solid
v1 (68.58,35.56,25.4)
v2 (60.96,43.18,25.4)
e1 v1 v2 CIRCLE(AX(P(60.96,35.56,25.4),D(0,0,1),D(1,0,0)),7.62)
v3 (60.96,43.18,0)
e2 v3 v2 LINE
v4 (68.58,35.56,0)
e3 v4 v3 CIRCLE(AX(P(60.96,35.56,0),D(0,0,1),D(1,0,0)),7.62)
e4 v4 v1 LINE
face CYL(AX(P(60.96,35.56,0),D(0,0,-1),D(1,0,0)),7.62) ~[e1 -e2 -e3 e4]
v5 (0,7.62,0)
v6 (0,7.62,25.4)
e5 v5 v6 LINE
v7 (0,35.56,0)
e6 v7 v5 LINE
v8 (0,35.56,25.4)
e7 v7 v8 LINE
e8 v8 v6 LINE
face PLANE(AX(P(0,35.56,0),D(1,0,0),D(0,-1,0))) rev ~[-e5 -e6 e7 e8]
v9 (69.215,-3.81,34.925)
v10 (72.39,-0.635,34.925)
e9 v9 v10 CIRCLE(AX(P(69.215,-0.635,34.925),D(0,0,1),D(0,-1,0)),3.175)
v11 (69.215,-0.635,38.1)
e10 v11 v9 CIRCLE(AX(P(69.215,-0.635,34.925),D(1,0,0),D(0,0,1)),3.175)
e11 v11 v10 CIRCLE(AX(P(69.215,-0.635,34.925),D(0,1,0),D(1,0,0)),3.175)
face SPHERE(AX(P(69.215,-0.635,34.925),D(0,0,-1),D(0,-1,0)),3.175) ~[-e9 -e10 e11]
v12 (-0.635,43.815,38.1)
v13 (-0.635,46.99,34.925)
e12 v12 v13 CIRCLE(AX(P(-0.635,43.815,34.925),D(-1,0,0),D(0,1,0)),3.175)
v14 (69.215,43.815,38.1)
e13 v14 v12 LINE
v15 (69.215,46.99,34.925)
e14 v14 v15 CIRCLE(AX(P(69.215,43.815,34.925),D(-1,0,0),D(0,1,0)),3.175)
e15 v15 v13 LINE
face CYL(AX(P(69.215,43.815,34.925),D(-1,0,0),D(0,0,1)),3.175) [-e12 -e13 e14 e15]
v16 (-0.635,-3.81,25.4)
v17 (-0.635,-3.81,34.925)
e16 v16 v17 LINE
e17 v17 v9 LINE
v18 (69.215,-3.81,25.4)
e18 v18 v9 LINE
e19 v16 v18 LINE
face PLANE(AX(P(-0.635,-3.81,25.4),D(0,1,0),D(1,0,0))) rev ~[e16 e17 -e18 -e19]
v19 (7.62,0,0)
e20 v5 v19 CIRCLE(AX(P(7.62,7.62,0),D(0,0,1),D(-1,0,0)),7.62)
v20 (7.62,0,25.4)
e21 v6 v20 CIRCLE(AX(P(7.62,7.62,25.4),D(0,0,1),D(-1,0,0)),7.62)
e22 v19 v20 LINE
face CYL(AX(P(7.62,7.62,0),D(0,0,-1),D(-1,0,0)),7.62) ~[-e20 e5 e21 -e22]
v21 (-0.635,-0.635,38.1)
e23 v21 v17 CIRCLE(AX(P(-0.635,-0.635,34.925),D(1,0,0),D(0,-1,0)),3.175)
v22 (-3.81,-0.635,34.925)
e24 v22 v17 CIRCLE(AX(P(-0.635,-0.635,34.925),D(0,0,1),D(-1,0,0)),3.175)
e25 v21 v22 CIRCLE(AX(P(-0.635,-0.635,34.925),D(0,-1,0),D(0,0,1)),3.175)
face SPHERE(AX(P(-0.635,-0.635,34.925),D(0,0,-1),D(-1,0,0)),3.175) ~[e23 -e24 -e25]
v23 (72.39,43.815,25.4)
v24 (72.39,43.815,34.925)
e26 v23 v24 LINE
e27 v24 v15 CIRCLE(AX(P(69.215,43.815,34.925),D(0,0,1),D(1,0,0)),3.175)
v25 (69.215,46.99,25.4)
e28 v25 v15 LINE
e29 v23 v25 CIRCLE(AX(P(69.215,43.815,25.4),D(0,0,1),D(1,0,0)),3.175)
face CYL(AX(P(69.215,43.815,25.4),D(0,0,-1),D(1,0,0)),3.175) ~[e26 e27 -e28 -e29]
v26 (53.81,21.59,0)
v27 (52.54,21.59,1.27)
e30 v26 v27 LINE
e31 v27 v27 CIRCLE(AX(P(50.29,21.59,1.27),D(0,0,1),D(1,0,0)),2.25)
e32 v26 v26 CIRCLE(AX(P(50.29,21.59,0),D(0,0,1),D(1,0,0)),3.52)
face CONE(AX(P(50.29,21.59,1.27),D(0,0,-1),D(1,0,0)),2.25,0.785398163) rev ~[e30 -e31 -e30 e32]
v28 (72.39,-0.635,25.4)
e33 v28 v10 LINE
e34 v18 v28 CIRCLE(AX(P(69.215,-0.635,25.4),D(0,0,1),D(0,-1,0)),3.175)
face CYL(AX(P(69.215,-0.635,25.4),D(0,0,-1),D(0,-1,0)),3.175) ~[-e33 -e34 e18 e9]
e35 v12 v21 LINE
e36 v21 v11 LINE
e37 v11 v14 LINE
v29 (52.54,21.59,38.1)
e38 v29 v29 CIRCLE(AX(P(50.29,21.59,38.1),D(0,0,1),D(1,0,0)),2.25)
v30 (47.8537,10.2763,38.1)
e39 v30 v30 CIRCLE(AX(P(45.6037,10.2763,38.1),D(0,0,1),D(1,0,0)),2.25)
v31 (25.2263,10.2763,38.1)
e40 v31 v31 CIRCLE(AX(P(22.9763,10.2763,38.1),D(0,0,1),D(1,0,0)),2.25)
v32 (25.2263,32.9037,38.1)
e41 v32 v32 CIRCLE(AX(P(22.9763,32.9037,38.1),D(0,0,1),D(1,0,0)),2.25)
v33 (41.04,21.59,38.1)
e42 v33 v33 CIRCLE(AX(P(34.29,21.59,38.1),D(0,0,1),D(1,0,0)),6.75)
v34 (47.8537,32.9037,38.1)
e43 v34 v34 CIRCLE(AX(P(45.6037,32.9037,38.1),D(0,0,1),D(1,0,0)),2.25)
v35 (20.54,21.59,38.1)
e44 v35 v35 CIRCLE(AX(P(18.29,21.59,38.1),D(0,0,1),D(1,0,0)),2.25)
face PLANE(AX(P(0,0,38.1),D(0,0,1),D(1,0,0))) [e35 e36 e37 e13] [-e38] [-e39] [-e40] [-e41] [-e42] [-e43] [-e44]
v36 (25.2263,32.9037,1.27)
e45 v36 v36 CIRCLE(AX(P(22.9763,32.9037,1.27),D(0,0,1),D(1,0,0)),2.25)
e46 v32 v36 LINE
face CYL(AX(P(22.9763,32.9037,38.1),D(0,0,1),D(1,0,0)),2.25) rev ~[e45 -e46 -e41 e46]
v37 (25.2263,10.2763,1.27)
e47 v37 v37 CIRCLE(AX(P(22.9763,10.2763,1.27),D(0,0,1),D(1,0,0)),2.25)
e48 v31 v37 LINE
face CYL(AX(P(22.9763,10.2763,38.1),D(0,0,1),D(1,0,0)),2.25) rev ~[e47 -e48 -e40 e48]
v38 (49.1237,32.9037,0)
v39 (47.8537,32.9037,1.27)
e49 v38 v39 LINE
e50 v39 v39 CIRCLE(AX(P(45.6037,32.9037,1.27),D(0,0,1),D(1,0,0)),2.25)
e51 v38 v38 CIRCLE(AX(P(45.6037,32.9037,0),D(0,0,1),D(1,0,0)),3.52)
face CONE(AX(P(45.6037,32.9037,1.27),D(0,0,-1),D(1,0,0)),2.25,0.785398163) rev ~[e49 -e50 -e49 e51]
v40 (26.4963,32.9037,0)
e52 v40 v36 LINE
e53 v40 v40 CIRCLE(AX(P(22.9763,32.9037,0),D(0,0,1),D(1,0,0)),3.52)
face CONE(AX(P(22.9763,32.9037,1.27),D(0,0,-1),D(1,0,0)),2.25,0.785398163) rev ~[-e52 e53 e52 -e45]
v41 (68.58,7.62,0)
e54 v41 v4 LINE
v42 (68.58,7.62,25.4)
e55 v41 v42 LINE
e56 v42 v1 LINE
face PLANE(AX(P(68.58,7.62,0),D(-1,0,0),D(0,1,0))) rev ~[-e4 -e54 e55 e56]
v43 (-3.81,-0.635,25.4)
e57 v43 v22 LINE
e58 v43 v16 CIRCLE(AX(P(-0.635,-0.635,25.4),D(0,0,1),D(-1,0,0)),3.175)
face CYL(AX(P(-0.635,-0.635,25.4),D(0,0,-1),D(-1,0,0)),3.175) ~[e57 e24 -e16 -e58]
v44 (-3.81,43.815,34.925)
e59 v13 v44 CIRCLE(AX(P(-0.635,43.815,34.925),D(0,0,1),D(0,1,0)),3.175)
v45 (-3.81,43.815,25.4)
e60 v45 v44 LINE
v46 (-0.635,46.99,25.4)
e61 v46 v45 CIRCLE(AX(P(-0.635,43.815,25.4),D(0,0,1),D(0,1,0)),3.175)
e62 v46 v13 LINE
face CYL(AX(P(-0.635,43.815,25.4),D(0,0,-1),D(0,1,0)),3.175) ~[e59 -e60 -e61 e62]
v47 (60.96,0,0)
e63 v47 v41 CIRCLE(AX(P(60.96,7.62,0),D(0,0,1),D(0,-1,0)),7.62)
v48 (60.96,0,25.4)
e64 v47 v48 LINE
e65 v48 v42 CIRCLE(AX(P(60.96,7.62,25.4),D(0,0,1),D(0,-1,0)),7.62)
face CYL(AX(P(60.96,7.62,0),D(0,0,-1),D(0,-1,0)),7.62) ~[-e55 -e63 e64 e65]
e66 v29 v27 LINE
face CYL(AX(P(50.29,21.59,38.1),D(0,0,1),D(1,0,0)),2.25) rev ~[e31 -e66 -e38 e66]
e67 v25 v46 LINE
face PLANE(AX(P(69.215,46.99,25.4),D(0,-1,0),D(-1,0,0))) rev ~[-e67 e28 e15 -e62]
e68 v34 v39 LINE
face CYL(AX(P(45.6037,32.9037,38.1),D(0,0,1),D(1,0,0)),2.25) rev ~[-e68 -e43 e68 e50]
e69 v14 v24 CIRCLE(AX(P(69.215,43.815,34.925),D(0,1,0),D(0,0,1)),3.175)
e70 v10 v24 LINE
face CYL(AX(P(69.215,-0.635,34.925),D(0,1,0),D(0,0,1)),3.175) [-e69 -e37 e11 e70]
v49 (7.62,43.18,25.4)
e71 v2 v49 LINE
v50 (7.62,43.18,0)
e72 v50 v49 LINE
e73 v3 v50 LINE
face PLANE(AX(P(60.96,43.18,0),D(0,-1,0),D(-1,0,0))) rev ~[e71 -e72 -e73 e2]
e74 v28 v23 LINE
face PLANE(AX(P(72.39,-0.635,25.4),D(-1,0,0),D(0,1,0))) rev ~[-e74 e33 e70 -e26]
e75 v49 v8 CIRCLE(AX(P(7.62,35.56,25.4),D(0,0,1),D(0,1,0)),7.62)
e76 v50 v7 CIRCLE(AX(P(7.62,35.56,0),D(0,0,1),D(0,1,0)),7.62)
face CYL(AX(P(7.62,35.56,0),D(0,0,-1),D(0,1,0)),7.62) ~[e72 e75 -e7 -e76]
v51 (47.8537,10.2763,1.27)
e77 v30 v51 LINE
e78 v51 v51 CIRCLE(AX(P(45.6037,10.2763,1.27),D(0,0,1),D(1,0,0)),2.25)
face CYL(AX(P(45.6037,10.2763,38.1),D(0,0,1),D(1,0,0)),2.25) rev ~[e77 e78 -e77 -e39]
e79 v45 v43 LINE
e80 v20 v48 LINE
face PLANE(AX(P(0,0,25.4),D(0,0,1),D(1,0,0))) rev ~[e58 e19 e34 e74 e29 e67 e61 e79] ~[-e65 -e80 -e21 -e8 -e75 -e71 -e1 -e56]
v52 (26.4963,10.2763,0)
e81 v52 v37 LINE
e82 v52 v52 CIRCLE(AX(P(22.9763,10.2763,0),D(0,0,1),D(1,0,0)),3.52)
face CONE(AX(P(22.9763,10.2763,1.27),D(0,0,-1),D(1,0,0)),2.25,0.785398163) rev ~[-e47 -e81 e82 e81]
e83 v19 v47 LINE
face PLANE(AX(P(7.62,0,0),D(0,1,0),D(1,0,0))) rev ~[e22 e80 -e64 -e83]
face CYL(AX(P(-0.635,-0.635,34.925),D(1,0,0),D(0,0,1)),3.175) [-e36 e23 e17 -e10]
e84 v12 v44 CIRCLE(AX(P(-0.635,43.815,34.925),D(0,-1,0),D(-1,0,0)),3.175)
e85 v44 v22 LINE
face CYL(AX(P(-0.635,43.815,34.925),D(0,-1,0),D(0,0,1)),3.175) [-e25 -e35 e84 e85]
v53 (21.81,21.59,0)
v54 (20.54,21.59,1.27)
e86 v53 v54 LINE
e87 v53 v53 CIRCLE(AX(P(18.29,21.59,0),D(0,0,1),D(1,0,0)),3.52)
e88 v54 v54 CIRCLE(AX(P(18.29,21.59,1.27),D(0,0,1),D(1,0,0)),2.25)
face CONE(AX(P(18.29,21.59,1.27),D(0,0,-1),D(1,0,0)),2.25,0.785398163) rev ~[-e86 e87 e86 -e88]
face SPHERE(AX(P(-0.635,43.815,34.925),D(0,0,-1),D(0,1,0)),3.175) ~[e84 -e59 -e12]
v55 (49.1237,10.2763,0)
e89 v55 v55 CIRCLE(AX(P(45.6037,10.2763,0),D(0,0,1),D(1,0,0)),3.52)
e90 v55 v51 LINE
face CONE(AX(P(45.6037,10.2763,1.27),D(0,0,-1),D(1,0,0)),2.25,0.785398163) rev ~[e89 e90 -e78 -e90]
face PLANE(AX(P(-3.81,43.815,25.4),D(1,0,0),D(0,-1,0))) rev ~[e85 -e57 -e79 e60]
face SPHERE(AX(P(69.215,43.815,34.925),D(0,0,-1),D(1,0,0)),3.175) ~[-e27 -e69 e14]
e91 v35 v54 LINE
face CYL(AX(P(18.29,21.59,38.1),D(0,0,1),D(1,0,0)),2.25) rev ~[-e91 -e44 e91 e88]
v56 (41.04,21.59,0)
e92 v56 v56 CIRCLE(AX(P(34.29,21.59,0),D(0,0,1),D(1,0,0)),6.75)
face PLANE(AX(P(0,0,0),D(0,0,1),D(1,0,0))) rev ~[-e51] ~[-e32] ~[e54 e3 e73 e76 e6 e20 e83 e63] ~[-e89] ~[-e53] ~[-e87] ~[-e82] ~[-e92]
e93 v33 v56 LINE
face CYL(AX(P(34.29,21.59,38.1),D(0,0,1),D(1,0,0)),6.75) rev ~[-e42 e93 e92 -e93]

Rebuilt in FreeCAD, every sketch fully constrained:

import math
import FreeCAD as App
import Part
import Sketcher

V = App.Vector
Q = App.Units.Quantity


def edges_at(feature, points):
    """Names of the edges that pass closest to the given points."""
    edges = feature.Shape.Edges
    near = lambda p: min(range(len(edges)), key=lambda i: edges[i].distToShape(Part.Vertex(*p))[0])
    return sorted({f"Edge{near(p) + 1}" for p in points})

doc = App.newDocument("Part")
body = doc.addObject("PartDesign::Body", "Body")

sketch1 = body.newObject("Sketcher::SketchObject", "Sketch")
sketch1.AttachmentSupport = (doc.getObject("XY_Plane"), [""])
sketch1.MapMode = "FlatFace"
sketch1.addGeometry([
    Part.ArcOfCircle(Part.Circle(V(8, 8, 0), V(0, 0, 1), 8), math.radians(180), math.radians(270)),
    Part.LineSegment(V(8, 0, 0), V(61, 0, 0)),
    Part.ArcOfCircle(Part.Circle(V(61, 8, 0), V(0, 0, 1), 8), math.radians(-90), math.radians(0)),
    Part.LineSegment(V(69, 8, 0), V(69, 36, 0)),
    Part.ArcOfCircle(Part.Circle(V(61, 36, 0), V(0, 0, 1), 8), math.radians(0), math.radians(90)),
    Part.LineSegment(V(61, 43, 0), V(8, 43, 0)),
    Part.ArcOfCircle(Part.Circle(V(8, 36, 0), V(0, 0, 1), 8), math.radians(90), math.radians(180)),
    Part.LineSegment(V(0, 36, 0), V(0, 8, 0)),
], False)
sketch1.addConstraint([
    Sketcher.Constraint("Tangent", 0, 2, 1, 1),
    Sketcher.Constraint("Tangent", 1, 2, 2, 1),
    Sketcher.Constraint("Tangent", 2, 2, 3, 1),
    Sketcher.Constraint("Tangent", 3, 2, 4, 1),
    Sketcher.Constraint("Tangent", 4, 2, 5, 1),
    Sketcher.Constraint("Tangent", 5, 2, 6, 1),
    Sketcher.Constraint("Tangent", 6, 2, 7, 1),
    Sketcher.Constraint("Tangent", 7, 2, 0, 1),
    Sketcher.Constraint("Horizontal", 1),
    Sketcher.Constraint("Vertical", 3),
    Sketcher.Constraint("Horizontal", 5),
    Sketcher.Constraint("Vertical", 7),
    Sketcher.Constraint("Equal", 0, 2),
    Sketcher.Constraint("Equal", 2, 4),
    Sketcher.Constraint("Equal", 4, 6),
    Sketcher.Constraint("PointOnObject", 0, 2, -1),
    Sketcher.Constraint("PointOnObject", 6, 2, -2),
    Sketcher.Constraint("Radius", 0, Q("0.3 in")),
    Sketcher.Constraint("DistanceX", -1, 1, 2, 2, Q("2.7 in")),
    Sketcher.Constraint("DistanceY", -1, 1, 4, 2, Q("1.7 in")),
])
pad1 = body.newObject("PartDesign::Pad", "Pad")
pad1.Profile = sketch1
pad1.Length = Q("1 in")

sketch2 = body.newObject("Sketcher::SketchObject", "Sketch001")
sketch2.AttachmentSupport = (doc.getObject("XY_Plane"), [""])
sketch2.MapMode = "FlatFace"
sketch2.AttachmentOffset = App.Placement(V(0, 0, 1 * 25.4), App.Rotation())
sketch2.addGeometry([
    Part.ArcOfCircle(Part.Circle(V(-0.6, -0.6, 0), V(0, 0, 1), 3.2), math.radians(180), math.radians(270)),
    Part.LineSegment(V(-0.6, -3.8, 0), V(69.2, -3.8, 0)),
    Part.ArcOfCircle(Part.Circle(V(69.2, -0.6, 0), V(0, 0, 1), 3.2), math.radians(-90), math.radians(0)),
    Part.LineSegment(V(72.4, -0.6, 0), V(72.4, 43.8, 0)),
    Part.ArcOfCircle(Part.Circle(V(69.2, 43.8, 0), V(0, 0, 1), 3.2), math.radians(0), math.radians(90)),
    Part.LineSegment(V(69.2, 47, 0), V(-0.6, 47, 0)),
    Part.ArcOfCircle(Part.Circle(V(-0.6, 43.8, 0), V(0, 0, 1), 3.2), math.radians(90), math.radians(180)),
    Part.LineSegment(V(-3.8, 43.8, 0), V(-3.8, -0.6, 0)),
], False)
sketch2.addConstraint([
    Sketcher.Constraint("Tangent", 0, 2, 1, 1),
    Sketcher.Constraint("Tangent", 1, 2, 2, 1),
    Sketcher.Constraint("Tangent", 2, 2, 3, 1),
    Sketcher.Constraint("Tangent", 3, 2, 4, 1),
    Sketcher.Constraint("Tangent", 4, 2, 5, 1),
    Sketcher.Constraint("Tangent", 5, 2, 6, 1),
    Sketcher.Constraint("Tangent", 6, 2, 7, 1),
    Sketcher.Constraint("Tangent", 7, 2, 0, 1),
    Sketcher.Constraint("Horizontal", 1),
    Sketcher.Constraint("Vertical", 3),
    Sketcher.Constraint("Horizontal", 5),
    Sketcher.Constraint("Vertical", 7),
    Sketcher.Constraint("Equal", 0, 2),
    Sketcher.Constraint("Equal", 2, 4),
    Sketcher.Constraint("Equal", 4, 6),
    Sketcher.Constraint("Radius", 0, Q("0.125 in")),
    Sketcher.Constraint("DistanceY", 1, 2, 4, 2, Q("2 in")),
    Sketcher.Constraint("DistanceX", 1, 1, 1, 2, Q("2.75 in")),
    Sketcher.Constraint("DistanceY", 0, 2, -1, 1, Q("0.15 in")),
    Sketcher.Constraint("DistanceX", -1, 1, 2, 2, Q("2.85 in")),
])
pad2 = body.newObject("PartDesign::Pad", "Pad001")
pad2.Profile = sketch2
pad2.Length = Q("0.5 in")
doc.recompute()

fillet = body.newObject("PartDesign::Fillet", "Fillet")
fillet.Base = (pad2, edges_at(pad2, [
    (-2.88, 46.06, 38.1),
    (-3.81, 21.59, 38.1),
    (-2.88, -2.88, 38.1),
    (34.29, -3.81, 38.1),
    (71.46, -2.88, 38.1),
    (72.39, 21.59, 38.1),
    (71.46, 46.06, 38.1),
    (34.29, 46.99, 38.1),
]))
fillet.Radius = Q("0.125 in")

sketch3 = body.newObject("Sketcher::SketchObject", "Sketch002")
sketch3.AttachmentSupport = (doc.getObject("XY_Plane"), [""])
sketch3.MapMode = "FlatFace"
sketch3.AttachmentOffset = App.Placement(V(0, 0, 1.5 * 25.4), App.Rotation())
sketch3.addGeometry([
    Part.Circle(V(34.3, 21.6, 0), V(0, 0, 1), 6.8),
    Part.Circle(V(23, 32.9, 0), V(0, 0, 1), 2.2),
    Part.Circle(V(45.6, 32.9, 0), V(0, 0, 1), 2.2),
    Part.Circle(V(18.3, 21.6, 0), V(0, 0, 1), 2.2),
    Part.Circle(V(50.3, 21.6, 0), V(0, 0, 1), 2.2),
    Part.Circle(V(23, 10.3, 0), V(0, 0, 1), 2.2),
    Part.Circle(V(45.6, 10.3, 0), V(0, 0, 1), 2.2),
], False)
sketch3.addConstraint([
    Sketcher.Constraint("Equal", 1, 2),
    Sketcher.Constraint("Equal", 2, 3),
    Sketcher.Constraint("Equal", 3, 4),
    Sketcher.Constraint("Equal", 4, 5),
    Sketcher.Constraint("Equal", 5, 6),
    Sketcher.Constraint("Horizontal", 1, 3, 2, 3),
    Sketcher.Constraint("Horizontal", 0, 3, 3, 3),
    Sketcher.Constraint("Horizontal", 3, 3, 4, 3),
    Sketcher.Constraint("Horizontal", 5, 3, 6, 3),
    Sketcher.Constraint("Vertical", 1, 3, 5, 3),
    Sketcher.Constraint("Vertical", 2, 3, 6, 3),
    Sketcher.Constraint("Diameter", 0, Q("0.5315 in")),
    Sketcher.Constraint("Diameter", 1, 4.5),
    Sketcher.Constraint("DistanceX", -1, 1, 0, 3, Q("1.35 in")),
    Sketcher.Constraint("DistanceY", -1, 1, 0, 3, Q("0.85 in")),
    Sketcher.Constraint("DistanceX", 3, 3, 4, 3, 32.0),
    Sketcher.Constraint("DistanceX", 3, 3, 1, 3, Q("0.1845 in")),
    Sketcher.Constraint("DistanceX", 2, 3, 4, 3, Q("0.1845 in")),
    Sketcher.Constraint("DistanceX", -1, 1, 1, 3, 22.9763),
    Sketcher.Constraint("DistanceY", -1, 1, 1, 3, 32.9037),
    Sketcher.Constraint("DistanceY", -1, 1, 5, 3, 10.2763),
])
pocket1 = body.newObject("PartDesign::Pocket", "Pocket")
pocket1.Profile = sketch3
pocket1.Length = Q("1.5 in")
doc.recompute()

chamfer = body.newObject("PartDesign::Chamfer", "Chamfer")
chamfer.Base = (pocket1, edges_at(pocket1, [
    (43.354, 32.904, 0),
    (20.726, 32.904, 0),
    (16.04, 21.59, 0),
    (48.04, 21.59, 0),
    (43.354, 10.276, 0),
    (20.726, 10.276, 0),
]))
chamfer.Size = Q("0.05 in")

doc.recompute()
